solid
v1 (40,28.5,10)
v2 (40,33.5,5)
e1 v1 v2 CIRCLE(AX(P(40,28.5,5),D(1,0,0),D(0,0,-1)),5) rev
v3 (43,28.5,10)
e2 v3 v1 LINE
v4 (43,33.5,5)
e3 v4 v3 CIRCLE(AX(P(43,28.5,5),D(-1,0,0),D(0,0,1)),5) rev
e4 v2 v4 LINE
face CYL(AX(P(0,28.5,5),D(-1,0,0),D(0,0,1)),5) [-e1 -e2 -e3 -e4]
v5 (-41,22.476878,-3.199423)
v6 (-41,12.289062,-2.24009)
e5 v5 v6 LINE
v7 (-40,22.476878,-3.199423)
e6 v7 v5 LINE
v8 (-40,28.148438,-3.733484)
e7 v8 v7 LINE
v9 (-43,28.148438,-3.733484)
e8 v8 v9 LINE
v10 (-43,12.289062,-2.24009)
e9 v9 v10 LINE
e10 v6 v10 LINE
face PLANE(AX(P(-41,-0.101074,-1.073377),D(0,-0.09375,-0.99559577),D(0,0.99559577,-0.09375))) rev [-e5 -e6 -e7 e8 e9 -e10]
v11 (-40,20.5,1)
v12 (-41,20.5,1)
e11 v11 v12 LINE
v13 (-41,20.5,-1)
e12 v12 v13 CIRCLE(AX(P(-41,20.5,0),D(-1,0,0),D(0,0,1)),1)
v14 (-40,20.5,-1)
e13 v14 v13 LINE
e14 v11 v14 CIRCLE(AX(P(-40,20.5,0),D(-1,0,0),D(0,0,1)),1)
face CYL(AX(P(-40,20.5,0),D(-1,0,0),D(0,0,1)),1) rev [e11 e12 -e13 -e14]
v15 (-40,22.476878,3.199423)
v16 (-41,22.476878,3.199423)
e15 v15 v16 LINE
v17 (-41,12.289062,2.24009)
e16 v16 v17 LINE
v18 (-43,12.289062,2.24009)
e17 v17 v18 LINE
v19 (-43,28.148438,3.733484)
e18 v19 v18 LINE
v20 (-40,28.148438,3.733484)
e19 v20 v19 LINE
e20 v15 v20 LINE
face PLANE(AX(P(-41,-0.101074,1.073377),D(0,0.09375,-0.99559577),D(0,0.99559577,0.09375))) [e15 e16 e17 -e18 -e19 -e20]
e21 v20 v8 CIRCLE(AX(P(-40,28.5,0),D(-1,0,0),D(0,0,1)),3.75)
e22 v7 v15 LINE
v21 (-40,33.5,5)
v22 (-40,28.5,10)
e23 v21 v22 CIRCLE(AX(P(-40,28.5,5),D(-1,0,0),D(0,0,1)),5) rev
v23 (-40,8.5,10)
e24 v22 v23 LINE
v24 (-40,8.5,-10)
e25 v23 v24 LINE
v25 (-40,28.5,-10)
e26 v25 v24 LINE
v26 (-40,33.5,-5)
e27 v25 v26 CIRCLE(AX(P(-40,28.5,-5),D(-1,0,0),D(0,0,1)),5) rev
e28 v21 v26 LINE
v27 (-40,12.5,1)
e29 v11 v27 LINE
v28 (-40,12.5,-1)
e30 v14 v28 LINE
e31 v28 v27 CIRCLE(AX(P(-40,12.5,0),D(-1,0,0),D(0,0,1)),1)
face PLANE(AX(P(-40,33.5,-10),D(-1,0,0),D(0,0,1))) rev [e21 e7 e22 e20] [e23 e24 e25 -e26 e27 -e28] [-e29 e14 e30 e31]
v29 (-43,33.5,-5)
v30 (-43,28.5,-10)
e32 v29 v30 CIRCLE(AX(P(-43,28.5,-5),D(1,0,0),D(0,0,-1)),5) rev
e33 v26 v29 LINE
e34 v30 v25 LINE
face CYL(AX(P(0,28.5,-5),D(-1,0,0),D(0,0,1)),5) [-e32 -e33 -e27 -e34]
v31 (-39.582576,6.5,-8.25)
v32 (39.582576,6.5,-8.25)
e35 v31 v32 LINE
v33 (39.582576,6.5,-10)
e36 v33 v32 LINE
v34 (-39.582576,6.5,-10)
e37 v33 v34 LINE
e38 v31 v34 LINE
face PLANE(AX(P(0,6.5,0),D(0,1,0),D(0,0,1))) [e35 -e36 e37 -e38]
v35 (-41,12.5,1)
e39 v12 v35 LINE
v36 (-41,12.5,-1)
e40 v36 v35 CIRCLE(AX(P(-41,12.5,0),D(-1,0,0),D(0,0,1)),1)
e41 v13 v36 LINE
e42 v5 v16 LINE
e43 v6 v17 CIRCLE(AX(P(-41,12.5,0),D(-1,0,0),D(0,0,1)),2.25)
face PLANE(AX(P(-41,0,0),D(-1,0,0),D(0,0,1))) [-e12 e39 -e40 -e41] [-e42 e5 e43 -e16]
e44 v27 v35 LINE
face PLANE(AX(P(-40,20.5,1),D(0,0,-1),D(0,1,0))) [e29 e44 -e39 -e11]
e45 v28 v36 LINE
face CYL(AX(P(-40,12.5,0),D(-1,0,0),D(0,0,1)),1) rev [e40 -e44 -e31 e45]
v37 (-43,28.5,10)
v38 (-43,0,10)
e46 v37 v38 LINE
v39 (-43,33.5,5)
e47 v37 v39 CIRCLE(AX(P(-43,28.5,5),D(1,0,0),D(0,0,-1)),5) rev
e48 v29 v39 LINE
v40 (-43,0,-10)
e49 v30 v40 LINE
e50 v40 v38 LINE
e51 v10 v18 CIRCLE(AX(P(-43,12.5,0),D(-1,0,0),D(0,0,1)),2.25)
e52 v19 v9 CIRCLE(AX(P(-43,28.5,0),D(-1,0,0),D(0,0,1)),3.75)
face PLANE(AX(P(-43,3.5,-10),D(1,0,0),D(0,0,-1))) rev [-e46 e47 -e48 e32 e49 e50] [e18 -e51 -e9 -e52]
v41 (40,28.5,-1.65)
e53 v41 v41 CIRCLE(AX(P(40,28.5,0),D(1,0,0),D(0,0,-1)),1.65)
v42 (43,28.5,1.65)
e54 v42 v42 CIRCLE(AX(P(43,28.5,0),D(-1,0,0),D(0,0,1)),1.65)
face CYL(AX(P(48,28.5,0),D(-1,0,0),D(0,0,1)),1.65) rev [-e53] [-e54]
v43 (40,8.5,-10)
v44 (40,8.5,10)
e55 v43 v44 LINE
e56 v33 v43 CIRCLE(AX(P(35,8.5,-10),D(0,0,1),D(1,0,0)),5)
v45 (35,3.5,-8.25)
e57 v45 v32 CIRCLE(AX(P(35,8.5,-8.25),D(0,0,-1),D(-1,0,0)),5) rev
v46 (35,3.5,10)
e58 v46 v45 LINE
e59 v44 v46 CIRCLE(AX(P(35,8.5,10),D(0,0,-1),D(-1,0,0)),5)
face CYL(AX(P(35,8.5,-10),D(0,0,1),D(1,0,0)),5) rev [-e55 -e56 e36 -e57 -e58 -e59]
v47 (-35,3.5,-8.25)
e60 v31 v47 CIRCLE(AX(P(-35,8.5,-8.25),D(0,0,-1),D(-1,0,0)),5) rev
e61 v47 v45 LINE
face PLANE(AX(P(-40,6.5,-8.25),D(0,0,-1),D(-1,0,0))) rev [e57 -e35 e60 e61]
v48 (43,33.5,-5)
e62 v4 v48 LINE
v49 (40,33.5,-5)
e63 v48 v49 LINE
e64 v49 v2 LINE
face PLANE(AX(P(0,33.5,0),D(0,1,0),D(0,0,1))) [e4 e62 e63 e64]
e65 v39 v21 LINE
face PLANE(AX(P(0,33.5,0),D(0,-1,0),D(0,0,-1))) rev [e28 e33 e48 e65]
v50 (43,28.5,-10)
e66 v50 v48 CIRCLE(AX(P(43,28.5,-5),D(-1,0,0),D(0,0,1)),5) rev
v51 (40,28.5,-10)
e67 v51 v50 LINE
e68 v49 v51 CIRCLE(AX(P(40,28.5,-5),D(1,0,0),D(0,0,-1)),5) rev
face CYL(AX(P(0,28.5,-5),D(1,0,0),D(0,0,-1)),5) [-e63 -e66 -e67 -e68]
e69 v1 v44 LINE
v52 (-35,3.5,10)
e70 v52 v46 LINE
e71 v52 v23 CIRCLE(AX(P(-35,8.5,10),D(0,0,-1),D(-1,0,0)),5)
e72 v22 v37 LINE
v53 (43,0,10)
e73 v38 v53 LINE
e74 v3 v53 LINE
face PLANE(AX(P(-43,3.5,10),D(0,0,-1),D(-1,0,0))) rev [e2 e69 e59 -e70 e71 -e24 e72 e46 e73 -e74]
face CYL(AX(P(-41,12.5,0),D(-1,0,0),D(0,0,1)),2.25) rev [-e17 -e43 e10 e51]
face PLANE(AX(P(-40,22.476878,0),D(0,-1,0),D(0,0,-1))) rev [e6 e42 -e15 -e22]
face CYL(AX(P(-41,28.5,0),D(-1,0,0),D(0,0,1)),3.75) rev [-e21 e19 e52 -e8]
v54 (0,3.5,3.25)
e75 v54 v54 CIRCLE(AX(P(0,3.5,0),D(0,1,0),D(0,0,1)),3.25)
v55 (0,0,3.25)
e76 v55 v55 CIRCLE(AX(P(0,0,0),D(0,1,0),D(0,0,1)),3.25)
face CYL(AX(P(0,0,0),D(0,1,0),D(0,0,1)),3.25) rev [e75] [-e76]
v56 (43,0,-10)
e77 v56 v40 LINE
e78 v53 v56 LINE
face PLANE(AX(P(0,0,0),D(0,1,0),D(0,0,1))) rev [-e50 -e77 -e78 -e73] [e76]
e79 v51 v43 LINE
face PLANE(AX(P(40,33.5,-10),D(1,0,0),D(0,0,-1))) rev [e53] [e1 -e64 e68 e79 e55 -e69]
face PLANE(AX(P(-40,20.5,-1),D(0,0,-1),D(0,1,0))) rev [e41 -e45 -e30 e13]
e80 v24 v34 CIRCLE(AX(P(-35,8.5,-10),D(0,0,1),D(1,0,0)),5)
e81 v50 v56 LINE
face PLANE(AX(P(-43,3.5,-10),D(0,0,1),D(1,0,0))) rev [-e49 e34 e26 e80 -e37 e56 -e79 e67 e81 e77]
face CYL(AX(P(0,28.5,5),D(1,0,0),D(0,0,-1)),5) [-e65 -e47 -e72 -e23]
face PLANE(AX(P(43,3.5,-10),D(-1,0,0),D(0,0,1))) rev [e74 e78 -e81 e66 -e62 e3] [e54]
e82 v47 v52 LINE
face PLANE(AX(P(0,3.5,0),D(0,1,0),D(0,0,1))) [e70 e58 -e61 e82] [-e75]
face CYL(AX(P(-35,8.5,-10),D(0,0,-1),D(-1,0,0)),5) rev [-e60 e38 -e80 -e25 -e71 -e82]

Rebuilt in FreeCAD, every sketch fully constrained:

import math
import FreeCAD as App
import Part
import Sketcher

V = App.Vector


def edges_at(feature, points):
    """Names of the edges that pass closest to the given points."""
    edges = feature.Shape.Edges
    near = lambda p: min(range(len(edges)), key=lambda i: edges[i].distToShape(Part.Vertex(*p))[0])
    return sorted({f"Edge{near(p) + 1}" for p in points})

doc = App.newDocument("Part")
body = doc.addObject("PartDesign::Body", "Body")

# Sketch on XZ plane
sketch1 = body.newObject("Sketcher::SketchObject", "Sketch")
sketch1.AttachmentSupport = (doc.getObject("XZ_Plane"), [""])
sketch1.MapMode = "FlatFace"
sketch1.addGeometry([
    Part.LineSegment(V(-43, -10, 0), V(-43, 10, 0)),
    Part.LineSegment(V(-43, 10, 0), V(43, 10, 0)),
    Part.LineSegment(V(43, 10, 0), V(43, -10, 0)),
    Part.LineSegment(V(43, -10, 0), V(-43, -10, 0)),
], False)
sketch1.addConstraint([
    Sketcher.Constraint("Coincident", 0, 2, 1, 1),
    Sketcher.Constraint("Coincident", 1, 2, 2, 1),
    Sketcher.Constraint("Coincident", 2, 2, 3, 1),
    Sketcher.Constraint("Coincident", 3, 2, 0, 1),
    Sketcher.Constraint("Vertical", 0),
    Sketcher.Constraint("Horizontal", 1),
    Sketcher.Constraint("Vertical", 2),
    Sketcher.Constraint("Horizontal", 3),
    Sketcher.Constraint("Symmetric", 0, 2, 2, 2, -1, 1),
    Sketcher.Constraint("DistanceX", 1, 1, 1, 2, 86.0),
    Sketcher.Constraint("DistanceY", 0, 1, 0, 2, 20.0),
])
pad1 = body.newObject("PartDesign::Pad", "Pad")
pad1.Profile = sketch1
pad1.Length = 3.5
pad1.Reversed = True

# Sketch on XZ plane
sketch2 = body.newObject("Sketcher::SketchObject", "Sketch001")
sketch2.AttachmentSupport = (doc.getObject("XZ_Plane"), [""])
sketch2.MapMode = "FlatFace"
sketch2.AttachmentOffset = App.Placement(V(0, 0, -3.5), App.Rotation())
sketch2.addGeometry(Part.Circle(V(0, 0, 0), V(0, 0, 1), 3.25), False)
sketch2.addConstraint([
    Sketcher.Constraint("Coincident", 0, 3, -1, 1),
    Sketcher.Constraint("Diameter", 0, 6.5),
])
pocket1 = body.newObject("PartDesign::Pocket", "Pocket")
pocket1.Profile = sketch2
pocket1.Length = 3.5
pocket1.Reversed = True

# Sketch on XZ plane
sketch3 = body.newObject("Sketcher::SketchObject", "Sketch002")
sketch3.AttachmentSupport = (doc.getObject("XZ_Plane"), [""])
sketch3.MapMode = "FlatFace"
sketch3.AttachmentOffset = App.Placement(V(0, 0, -3.5), App.Rotation())
sketch3.addGeometry([
    Part.LineSegment(V(40, -10, 0), V(40, 10, 0)),  # 0
    Part.LineSegment(V(40, 10, 0), V(43, 10, 0)),  # 1
    Part.LineSegment(V(43, 10, 0), V(43, -10, 0)),  # 2
    Part.LineSegment(V(43, -10, 0), V(40, -10, 0)),  # 3
    Part.LineSegment(V(-43, -10, 0), V(-43, 10, 0)),  # 4
    Part.LineSegment(V(-43, 10, 0), V(-40, 10, 0)),  # 5
    Part.LineSegment(V(-40, 10, 0), V(-40, -10, 0)),  # 6
    Part.LineSegment(V(-40, -10, 0), V(-43, -10, 0)),  # 7
], False)
sketch3.addConstraint([
    Sketcher.Constraint("Coincident", 0, 2, 1, 1),
    Sketcher.Constraint("Coincident", 1, 2, 2, 1),
    Sketcher.Constraint("Coincident", 2, 2, 3, 1),
    Sketcher.Constraint("Coincident", 3, 2, 0, 1),
    Sketcher.Constraint("Coincident", 4, 2, 5, 1),
    Sketcher.Constraint("Coincident", 5, 2, 6, 1),
    Sketcher.Constraint("Coincident", 6, 2, 7, 1),
    Sketcher.Constraint("Coincident", 7, 2, 4, 1),
    Sketcher.Constraint("Vertical", 0),
    Sketcher.Constraint("Horizontal", 1),
    Sketcher.Constraint("Vertical", 2),
    Sketcher.Constraint("Horizontal", 3),
    Sketcher.Constraint("Vertical", 4),
    Sketcher.Constraint("Horizontal", 5),
    Sketcher.Constraint("Vertical", 6),
    Sketcher.Constraint("Horizontal", 7),
    Sketcher.Constraint("Symmetric", 2, 2, 4, 2, -1, 1),
    Sketcher.Constraint("Symmetric", 0, 2, 6, 2, -1, 1),
    Sketcher.Constraint("Horizontal", 1, 2, 4, 2),
    Sketcher.Constraint("DistanceX", 1, 1, 1, 2, 3.0),
    Sketcher.Constraint("DistanceY", 0, 1, 0, 2, 20.0),
    Sketcher.Constraint("DistanceX", -1, 1, 0, 2, 40.0),
])
pad2 = body.newObject("PartDesign::Pad", "Pad001")
pad2.Profile = sketch3
pad2.Length = 30
pad2.Reversed = True
doc.recompute()

fillet = body.newObject("PartDesign::Fillet", "Fillet")
fillet.Base = (pad2, edges_at(pad2, [(-40, 3.5, 0)]))
fillet.Radius = 5
doc.recompute()

fillet2 = body.newObject("PartDesign::Fillet", "Fillet001")
fillet2.Base = (fillet, edges_at(fillet, [(40, 3.5, 0)]))
fillet2.Radius = 5

# Sketch on YZ plane
sketch4 = body.newObject("Sketcher::SketchObject", "Sketch003")
sketch4.AttachmentSupport = (doc.getObject("YZ_Plane"), [""])
sketch4.MapMode = "FlatFace"
sketch4.AttachmentOffset = App.Placement(V(0, 0, -43), App.Rotation())
sketch4.addGeometry(Part.Circle(V(28.5, 0, 0), V(0, 0, 1), 1.65), False)
sketch4.addConstraint([
    Sketcher.Constraint("PointOnObject", 0, 3, -1),
    Sketcher.Constraint("Diameter", 0, 3.3),
    Sketcher.Constraint("DistanceX", -1, 1, 0, 3, 28.5),
])
pocket2 = body.newObject("PartDesign::Pocket", "Pocket001")
pocket2.Profile = sketch4
pocket2.Length = 91
pocket2.Reversed = True
doc.recompute()

fillet3 = body.newObject("PartDesign::Fillet", "Fillet002")
fillet3.Base = (pocket2, edges_at(pocket2, [
    (41.5, 33.5, -10),
    (41.5, 33.5, 10),
    (-41.5, 33.5, 10),
    (-41.5, 33.5, -10),
]))
fillet3.Radius = 5

# Sketch on YZ plane
sketch5 = body.newObject("Sketcher::SketchObject", "Sketch004")
sketch5.AttachmentSupport = (doc.getObject("YZ_Plane"), [""])
sketch5.MapMode = "FlatFace"
sketch5.AttachmentOffset = App.Placement(V(0, 0, -43), App.Rotation())
sketch5.addGeometry([
    Part.LineSegment(V(12.289062, 2.24009, 0), V(28.148438, 3.733484, 0)),  # 0
    Part.ArcOfCircle(Part.Circle(V(28.5, 0, 0), V(0, 0, 1), 3.75), math.radians(-95.379379), math.radians(95.379379)),  # 1
    Part.LineSegment(V(28.148438, -3.733484, 0), V(12.289062, -2.24009, 0)),  # 2
    Part.ArcOfCircle(Part.Circle(V(12.5, 0, 0), V(0, 0, 1), 2.25), math.radians(95.379379), math.radians(264.620621)),  # 3
    Part.Circle(V(28.5, 0, 0), V(0, 0, 1), 1.65),  # 4
], False)
sketch5.addConstraint([
    Sketcher.Constraint("Tangent", 0, 2, 1, 2),
    Sketcher.Constraint("Tangent", 1, 1, 2, 1),
    Sketcher.Constraint("Tangent", 2, 2, 3, 2),
    Sketcher.Constraint("Tangent", 3, 1, 0, 1),
    Sketcher.Constraint("Coincident", 4, 3, 1, 3),
    Sketcher.Constraint("Symmetric", 0, 2, 1, 1, -1),
    Sketcher.Constraint("Diameter", 4, 3.3),
    Sketcher.Constraint("Radius", 1, 3.75),
    Sketcher.Constraint("Radius", 3, 2.25),
    Sketcher.Constraint("DistanceX", 3, 3, 1, 3, 16.0),
    Sketcher.Constraint("DistanceX", -1, 1, 1, 3, 28.5),
])
pocket3 = body.newObject("PartDesign::Pocket", "Pocket002")
pocket3.Profile = sketch5
pocket3.Length = 2
pocket3.Reversed = True

# Sketch on YZ plane
sketch6 = body.newObject("Sketcher::SketchObject", "Sketch005")
sketch6.AttachmentSupport = (doc.getObject("YZ_Plane"), [""])
sketch6.MapMode = "FlatFace"
sketch6.AttachmentOffset = App.Placement(V(0, 0, -41), App.Rotation())
sketch6.addGeometry([
    Part.ArcOfCircle(Part.Circle(V(28.5, 0, 0), V(0, 0, 1), 3.75), math.radians(-95.379379), math.radians(90)),  # 0
    Part.LineSegment(V(28.148438, -3.733484, 0), V(22.476878, -3.199423, 0)),  # 1
    Part.LineSegment(V(22.476878, -3.199423, 0), V(22.476878, 3.199423, 0)),  # 2
    Part.LineSegment(V(22.476878, 3.199423, 0), V(28.148438, 3.733484, 0)),  # 3
    Part.ArcOfCircle(Part.Circle(V(28.5, 0, 0), V(0, 0, 1), 3.75), math.radians(90), math.radians(95.379379)),  # 4
    Part.Circle(V(28.5, 0, 0), V(0, 0, 1), 1.65),  # 5
    Part.LineSegment(V(20.5, -1, 0), V(12.5, -1, 0)),  # 6
    Part.ArcOfCircle(Part.Circle(V(12.5, 0, 0), V(0, 0, 1), 1), math.radians(90), math.radians(270)),  # 7
    Part.LineSegment(V(12.5, 1, 0), V(20.5, 1, 0)),  # 8
    Part.ArcOfCircle(Part.Circle(V(20.5, 0, 0), V(0, 0, 1), 1), math.radians(-90), math.radians(90)),  # 9
], False)
sketch6.addConstraint([
    Sketcher.Constraint("Tangent", 0, 1, 1, 1),
    Sketcher.Constraint("Coincident", 1, 2, 2, 1),
    Sketcher.Constraint("Coincident", 2, 2, 3, 1),
    Sketcher.Constraint("Tangent", 3, 2, 4, 2),
    Sketcher.Constraint("Tangent", 4, 1, 0, 2),
    Sketcher.Constraint("Tangent", 6, 2, 7, 2),
    Sketcher.Constraint("Tangent", 7, 1, 8, 1),
    Sketcher.Constraint("Tangent", 8, 2, 9, 2),
    Sketcher.Constraint("Tangent", 9, 1, 6, 1),
    Sketcher.Constraint("Vertical", 2),
    Sketcher.Constraint("Horizontal", 6),
    Sketcher.Constraint("Horizontal", 8),
    Sketcher.Constraint("Coincident", 5, 3, 0, 3),
    Sketcher.Constraint("Equal", 0, 4),
    Sketcher.Constraint("Symmetric", 0, 1, 3, 2, -1),
    Sketcher.Constraint("PointOnObject", 7, 3, -1),
    Sketcher.Constraint("Vertical", 5, 3, 4, 1),
    Sketcher.Constraint("Radius", 7, 1.0),
    Sketcher.Constraint("Diameter", 5, 3.3),
    Sketcher.Constraint("DistanceX", 6, 2, 6, 1, 8.0),
    Sketcher.Constraint("Radius", 0, 3.75),
    Sketcher.Constraint("DistanceX", 7, 3, 4, 3, 16.0),
    Sketcher.Constraint("DistanceX", -1, 1, 0, 3, 28.5),
    Sketcher.Constraint("Distance", 1, 5.696649),
    Sketcher.Constraint("DistanceY", 2, 1, 2, 2, 6.398847),
])
pocket4 = body.newObject("PartDesign::Pocket", "Pocket003")
pocket4.Profile = sketch6
pocket4.Length = 1
pocket4.Reversed = True

# Sketch on XZ plane
sketch7 = body.newObject("Sketcher::SketchObject", "Sketch006")
sketch7.AttachmentSupport = (doc.getObject("XZ_Plane"), [""])
sketch7.MapMode = "FlatFace"
sketch7.AttachmentOffset = App.Placement(V(0, 0, -3.5), App.Rotation())
sketch7.addGeometry([
    Part.LineSegment(V(-40, -10, 0), V(-40, -8.25, 0)),
    Part.LineSegment(V(-40, -8.25, 0), V(40.307082, -8.25, 0)),
    Part.LineSegment(V(40.307082, -8.25, 0), V(40.307082, -10, 0)),
    Part.LineSegment(V(40.307082, -10, 0), V(-40, -10, 0)),
], False)
sketch7.addConstraint([
    Sketcher.Constraint("Coincident", 0, 2, 1, 1),
    Sketcher.Constraint("Coincident", 1, 2, 2, 1),
    Sketcher.Constraint("Coincident", 2, 2, 3, 1),
    Sketcher.Constraint("Coincident", 3, 2, 0, 1),
    Sketcher.Constraint("Vertical", 0),
    Sketcher.Constraint("Horizontal", 1),
    Sketcher.Constraint("Vertical", 2),
    Sketcher.Constraint("Horizontal", 3),
    Sketcher.Constraint("DistanceX", 0, 2, -1, 1, 40.0),
    Sketcher.Constraint("DistanceY", 2, 2, -1, 1, 10.0),
    Sketcher.Constraint("DistanceY", 0, 1, 0, 2, 1.75),
    Sketcher.Constraint("DistanceX", 1, 1, 1, 2, 80.307082),
])
pad3 = body.newObject("PartDesign::Pad", "Pad002")
pad3.Profile = sketch7
pad3.Length = 3
pad3.Reversed = True

doc.recompute()
